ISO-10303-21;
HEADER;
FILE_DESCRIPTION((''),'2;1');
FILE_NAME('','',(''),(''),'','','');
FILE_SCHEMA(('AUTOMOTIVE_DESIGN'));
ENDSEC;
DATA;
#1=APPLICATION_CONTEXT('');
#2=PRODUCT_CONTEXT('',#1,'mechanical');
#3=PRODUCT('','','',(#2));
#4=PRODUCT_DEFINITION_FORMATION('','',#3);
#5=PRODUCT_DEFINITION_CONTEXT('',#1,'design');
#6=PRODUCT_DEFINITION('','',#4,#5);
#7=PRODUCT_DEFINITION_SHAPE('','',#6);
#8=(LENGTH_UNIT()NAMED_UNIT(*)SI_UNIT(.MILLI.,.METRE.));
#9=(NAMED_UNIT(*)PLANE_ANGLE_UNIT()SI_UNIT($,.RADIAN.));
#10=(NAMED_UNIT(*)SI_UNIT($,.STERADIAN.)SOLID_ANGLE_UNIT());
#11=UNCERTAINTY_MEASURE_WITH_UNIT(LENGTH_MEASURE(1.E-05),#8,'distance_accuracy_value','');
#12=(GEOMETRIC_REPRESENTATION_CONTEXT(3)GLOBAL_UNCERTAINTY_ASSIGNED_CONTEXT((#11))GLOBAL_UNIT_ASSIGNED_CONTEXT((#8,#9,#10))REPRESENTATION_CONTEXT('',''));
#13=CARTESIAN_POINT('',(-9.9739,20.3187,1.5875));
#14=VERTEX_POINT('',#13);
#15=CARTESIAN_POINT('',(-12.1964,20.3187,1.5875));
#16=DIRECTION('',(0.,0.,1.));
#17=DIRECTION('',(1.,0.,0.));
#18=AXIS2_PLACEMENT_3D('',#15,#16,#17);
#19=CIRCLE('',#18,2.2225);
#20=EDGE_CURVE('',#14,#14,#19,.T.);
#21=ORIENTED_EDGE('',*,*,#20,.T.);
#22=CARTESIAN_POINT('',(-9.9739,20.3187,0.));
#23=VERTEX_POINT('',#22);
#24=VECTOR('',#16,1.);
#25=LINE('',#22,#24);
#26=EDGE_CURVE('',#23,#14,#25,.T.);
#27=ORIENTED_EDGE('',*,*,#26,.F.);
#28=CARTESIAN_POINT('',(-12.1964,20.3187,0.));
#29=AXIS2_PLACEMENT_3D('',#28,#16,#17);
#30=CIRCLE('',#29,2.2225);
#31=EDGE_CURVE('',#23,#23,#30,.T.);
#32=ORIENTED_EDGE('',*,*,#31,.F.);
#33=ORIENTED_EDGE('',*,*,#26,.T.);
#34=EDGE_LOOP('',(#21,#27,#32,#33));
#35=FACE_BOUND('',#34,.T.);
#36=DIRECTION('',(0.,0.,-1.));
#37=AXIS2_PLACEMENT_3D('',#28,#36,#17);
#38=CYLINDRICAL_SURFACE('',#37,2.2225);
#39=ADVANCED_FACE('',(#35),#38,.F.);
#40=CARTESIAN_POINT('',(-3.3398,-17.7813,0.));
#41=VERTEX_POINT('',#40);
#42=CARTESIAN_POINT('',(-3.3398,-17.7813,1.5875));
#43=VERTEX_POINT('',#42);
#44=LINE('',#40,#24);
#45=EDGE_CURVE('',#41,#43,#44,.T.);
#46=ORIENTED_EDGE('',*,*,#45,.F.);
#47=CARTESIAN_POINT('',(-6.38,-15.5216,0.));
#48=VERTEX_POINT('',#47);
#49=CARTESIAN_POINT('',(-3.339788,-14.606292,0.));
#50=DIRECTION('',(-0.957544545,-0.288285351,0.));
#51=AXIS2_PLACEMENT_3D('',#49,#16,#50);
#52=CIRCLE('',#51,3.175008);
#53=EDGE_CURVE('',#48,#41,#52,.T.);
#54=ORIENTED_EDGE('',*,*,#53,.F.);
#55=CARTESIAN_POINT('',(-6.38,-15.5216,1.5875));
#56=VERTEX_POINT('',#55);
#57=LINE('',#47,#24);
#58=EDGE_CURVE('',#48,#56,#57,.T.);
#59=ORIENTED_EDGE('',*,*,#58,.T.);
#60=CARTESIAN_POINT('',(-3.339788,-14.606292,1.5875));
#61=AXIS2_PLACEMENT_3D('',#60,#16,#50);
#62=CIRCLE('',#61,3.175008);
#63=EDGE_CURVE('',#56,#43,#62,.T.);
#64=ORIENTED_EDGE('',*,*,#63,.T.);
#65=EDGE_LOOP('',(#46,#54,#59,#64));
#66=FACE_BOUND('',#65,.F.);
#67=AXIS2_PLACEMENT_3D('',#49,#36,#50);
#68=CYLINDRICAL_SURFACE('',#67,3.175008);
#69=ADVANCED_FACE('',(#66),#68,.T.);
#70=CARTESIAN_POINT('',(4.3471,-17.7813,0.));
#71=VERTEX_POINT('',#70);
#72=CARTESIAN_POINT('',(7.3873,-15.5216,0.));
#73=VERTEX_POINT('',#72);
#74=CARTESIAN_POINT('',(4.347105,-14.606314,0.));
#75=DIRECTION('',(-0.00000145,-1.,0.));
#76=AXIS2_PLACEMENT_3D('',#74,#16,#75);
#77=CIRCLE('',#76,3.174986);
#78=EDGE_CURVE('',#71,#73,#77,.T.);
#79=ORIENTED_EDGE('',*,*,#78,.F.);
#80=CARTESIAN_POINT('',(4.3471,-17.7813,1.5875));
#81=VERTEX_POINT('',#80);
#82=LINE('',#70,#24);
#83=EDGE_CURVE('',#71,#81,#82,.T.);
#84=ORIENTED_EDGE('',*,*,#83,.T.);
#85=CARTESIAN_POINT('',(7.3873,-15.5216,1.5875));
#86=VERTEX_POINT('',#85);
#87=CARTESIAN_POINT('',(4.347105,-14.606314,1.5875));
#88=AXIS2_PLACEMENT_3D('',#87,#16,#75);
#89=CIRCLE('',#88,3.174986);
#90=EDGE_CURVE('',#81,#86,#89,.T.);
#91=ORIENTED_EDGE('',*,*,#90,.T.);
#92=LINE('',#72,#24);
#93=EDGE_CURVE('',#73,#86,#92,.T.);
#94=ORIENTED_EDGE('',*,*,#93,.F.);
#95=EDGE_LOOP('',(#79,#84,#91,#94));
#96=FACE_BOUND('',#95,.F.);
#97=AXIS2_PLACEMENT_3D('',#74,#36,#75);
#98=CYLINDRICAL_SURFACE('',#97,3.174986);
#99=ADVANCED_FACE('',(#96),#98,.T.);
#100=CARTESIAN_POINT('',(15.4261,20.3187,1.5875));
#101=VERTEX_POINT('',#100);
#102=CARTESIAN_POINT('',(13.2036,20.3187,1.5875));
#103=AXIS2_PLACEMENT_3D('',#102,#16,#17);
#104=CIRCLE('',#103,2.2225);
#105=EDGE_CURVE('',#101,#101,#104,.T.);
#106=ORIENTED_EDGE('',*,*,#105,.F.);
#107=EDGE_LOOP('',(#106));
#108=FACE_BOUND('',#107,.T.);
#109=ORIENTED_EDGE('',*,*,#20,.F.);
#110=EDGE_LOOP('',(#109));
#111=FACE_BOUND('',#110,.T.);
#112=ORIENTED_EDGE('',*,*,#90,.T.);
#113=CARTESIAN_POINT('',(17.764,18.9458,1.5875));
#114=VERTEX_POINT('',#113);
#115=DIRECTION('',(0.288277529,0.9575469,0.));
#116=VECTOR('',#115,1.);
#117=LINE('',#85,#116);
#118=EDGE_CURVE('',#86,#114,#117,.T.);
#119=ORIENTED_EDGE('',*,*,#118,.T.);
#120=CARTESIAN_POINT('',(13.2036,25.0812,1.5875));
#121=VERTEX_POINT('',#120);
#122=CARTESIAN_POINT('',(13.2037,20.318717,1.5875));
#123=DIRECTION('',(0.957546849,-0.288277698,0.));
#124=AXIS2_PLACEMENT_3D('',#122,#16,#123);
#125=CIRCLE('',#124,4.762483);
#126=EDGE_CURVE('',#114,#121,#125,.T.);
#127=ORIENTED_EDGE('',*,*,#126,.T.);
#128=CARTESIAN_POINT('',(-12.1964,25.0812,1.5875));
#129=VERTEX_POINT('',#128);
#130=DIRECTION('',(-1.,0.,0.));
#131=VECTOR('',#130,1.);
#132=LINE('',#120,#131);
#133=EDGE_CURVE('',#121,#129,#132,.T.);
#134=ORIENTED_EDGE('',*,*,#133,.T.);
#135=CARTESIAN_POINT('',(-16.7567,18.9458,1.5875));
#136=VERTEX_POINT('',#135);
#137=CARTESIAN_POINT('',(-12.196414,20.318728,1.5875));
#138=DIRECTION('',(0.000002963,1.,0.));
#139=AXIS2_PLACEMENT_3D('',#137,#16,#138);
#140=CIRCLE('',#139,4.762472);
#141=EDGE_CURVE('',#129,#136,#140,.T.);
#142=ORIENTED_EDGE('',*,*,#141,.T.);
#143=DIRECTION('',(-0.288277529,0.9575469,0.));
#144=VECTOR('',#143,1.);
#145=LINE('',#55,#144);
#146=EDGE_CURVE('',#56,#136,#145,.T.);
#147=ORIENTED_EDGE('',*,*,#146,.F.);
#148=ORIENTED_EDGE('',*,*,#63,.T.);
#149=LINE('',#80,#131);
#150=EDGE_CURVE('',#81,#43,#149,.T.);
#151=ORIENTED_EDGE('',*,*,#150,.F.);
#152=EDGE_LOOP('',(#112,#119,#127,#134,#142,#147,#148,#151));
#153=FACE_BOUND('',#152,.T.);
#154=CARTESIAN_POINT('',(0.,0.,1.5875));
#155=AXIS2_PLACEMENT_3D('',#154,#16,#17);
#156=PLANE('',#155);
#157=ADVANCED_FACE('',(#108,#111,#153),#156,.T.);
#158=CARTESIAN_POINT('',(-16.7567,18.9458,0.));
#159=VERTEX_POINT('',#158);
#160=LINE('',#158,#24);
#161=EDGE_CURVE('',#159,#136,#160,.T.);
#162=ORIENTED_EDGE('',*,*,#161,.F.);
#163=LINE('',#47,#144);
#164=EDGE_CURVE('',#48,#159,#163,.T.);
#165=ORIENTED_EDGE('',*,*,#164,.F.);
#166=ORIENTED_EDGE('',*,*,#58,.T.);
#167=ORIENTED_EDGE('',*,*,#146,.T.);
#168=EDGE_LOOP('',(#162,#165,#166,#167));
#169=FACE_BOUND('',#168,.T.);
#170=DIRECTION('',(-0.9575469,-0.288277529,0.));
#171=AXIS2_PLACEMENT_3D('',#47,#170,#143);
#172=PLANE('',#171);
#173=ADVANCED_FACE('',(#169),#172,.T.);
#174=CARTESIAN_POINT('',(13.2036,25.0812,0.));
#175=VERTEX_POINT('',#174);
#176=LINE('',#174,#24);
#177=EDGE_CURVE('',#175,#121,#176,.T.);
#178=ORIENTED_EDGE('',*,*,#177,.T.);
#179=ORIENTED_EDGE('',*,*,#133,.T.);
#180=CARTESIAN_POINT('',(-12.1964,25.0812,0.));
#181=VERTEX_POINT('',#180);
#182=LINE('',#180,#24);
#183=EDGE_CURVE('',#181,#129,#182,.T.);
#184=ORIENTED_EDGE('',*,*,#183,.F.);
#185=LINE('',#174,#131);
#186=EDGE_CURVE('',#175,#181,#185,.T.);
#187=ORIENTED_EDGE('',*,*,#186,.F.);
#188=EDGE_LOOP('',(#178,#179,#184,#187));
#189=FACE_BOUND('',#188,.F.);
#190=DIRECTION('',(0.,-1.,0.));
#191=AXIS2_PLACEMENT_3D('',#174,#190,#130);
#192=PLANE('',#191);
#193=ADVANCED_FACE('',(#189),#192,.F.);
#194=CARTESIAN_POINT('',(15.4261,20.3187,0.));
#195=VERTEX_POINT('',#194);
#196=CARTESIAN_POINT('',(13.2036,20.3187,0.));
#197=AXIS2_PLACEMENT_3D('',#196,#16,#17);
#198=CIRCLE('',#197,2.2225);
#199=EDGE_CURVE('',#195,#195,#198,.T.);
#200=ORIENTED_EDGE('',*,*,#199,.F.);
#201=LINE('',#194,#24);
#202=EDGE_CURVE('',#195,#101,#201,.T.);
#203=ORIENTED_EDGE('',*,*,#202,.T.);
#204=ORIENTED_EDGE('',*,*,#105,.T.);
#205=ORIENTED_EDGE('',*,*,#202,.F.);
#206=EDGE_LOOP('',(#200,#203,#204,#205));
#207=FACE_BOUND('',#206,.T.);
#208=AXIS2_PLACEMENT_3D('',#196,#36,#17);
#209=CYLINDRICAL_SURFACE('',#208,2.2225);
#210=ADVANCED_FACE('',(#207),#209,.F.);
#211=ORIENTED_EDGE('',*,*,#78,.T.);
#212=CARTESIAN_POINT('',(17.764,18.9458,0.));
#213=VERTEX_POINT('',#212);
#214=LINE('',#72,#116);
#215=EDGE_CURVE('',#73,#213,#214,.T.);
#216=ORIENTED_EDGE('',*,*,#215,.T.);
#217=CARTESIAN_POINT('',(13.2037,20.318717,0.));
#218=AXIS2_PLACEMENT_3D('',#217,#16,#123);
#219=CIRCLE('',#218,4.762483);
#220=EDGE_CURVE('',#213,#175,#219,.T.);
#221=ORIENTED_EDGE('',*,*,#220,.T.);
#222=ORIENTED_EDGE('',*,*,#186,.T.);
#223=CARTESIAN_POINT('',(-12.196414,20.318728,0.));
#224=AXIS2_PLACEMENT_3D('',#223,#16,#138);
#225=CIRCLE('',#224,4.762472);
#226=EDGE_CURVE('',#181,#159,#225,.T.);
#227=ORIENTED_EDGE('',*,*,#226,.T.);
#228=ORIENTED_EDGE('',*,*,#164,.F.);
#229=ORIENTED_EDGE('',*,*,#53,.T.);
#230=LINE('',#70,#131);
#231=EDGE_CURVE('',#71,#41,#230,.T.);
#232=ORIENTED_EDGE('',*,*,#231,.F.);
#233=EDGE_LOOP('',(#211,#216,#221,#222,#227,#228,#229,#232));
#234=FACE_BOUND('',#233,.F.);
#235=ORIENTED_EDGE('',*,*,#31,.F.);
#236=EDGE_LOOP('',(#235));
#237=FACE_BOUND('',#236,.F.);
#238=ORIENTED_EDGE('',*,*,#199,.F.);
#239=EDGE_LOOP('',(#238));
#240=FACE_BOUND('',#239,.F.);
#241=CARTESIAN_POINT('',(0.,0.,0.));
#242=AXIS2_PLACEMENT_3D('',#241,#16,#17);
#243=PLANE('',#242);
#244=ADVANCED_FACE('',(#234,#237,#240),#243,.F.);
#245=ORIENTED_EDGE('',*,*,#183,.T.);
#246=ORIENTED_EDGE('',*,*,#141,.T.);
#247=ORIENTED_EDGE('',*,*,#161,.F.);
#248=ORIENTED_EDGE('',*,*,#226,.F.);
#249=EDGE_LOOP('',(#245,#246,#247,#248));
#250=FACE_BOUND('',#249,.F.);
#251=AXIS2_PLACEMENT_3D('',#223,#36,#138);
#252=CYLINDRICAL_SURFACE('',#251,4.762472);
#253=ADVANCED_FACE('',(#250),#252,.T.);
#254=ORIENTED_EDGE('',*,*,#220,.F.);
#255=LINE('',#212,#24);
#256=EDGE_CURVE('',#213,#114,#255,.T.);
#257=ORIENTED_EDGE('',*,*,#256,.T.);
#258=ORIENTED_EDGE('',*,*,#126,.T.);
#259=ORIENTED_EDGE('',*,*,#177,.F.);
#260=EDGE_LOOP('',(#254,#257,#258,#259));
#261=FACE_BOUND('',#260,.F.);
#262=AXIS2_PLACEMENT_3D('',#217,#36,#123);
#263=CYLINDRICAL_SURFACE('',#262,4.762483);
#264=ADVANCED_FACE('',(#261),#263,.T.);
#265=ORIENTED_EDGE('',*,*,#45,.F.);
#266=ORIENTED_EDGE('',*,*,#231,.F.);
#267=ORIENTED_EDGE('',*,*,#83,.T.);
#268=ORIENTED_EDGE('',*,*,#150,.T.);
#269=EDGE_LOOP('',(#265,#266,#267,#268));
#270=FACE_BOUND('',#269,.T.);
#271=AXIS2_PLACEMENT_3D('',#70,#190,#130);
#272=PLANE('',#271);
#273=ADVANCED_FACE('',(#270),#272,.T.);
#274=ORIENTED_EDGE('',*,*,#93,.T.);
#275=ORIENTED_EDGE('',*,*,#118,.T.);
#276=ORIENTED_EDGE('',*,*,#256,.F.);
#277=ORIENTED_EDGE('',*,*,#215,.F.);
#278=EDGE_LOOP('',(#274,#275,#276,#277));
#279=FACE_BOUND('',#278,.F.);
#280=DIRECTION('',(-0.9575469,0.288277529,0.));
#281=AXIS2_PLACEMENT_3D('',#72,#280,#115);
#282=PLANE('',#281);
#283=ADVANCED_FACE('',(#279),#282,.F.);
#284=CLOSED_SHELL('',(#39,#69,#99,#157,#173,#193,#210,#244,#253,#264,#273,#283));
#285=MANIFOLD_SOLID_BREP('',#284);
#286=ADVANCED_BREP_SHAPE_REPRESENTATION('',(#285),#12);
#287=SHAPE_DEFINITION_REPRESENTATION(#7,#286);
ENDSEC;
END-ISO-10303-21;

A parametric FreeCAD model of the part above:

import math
import FreeCAD as App
import Part
import Sketcher
from FreeCAD import Vector
Q = App.Units.Quantity

doc = App.newDocument("Part")
params = doc.addObject("Spreadsheet::Sheet", "Params")
for row, (alias, value) in enumerate([
    ("sketch1_radius", "0.1875 in"),
    ("sketch1_radius2", "0.125 in"),
    ("sketch1_width", "1 in"),
    ("sketch1_diameter", "0.175 in"),
    ("pad1_length", "0.0625 in"),
], start=1):
    params.set(f"A{row}", alias)
    params.set(f"B{row}", "=" + value)
    params.setAlias(f"B{row}", alias)

body = doc.addObject("PartDesign::Body", "Body")

sketch1 = doc.addObject("Sketcher::SketchObject", "Sketch")
body.addObject(sketch1)
sketch1.AttachmentSupport = (doc.XY_Plane, [""])
sketch1.MapMode = "FlatFace"
sketch1.addGeometry([
    Part.LineSegment(Vector(7.4, -15.5, 0), Vector(17.8, 18.9, 0)),
    Part.ArcOfCircle(Part.Circle(Vector(13.2, 20.3, 0), Vector(0, 0, 1), 4.8), math.radians(-17), math.radians(90)),
    Part.LineSegment(Vector(13.2, 25.1, 0), Vector(-12.2, 25.1, 0)),
    Part.ArcOfCircle(Part.Circle(Vector(-12.2, 20.3, 0), Vector(0, 0, 1), 4.8), math.radians(90), math.radians(197)),
    Part.LineSegment(Vector(-16.8, 18.9, 0), Vector(-6.4, -15.5, 0)),
    Part.ArcOfCircle(Part.Circle(Vector(-3.3, -14.6, 0), Vector(0, 0, 1), 3.2), math.radians(-163), math.radians(-90)),
    Part.LineSegment(Vector(-3.3, -17.8, 0), Vector(4.3, -17.8, 0)),
    Part.ArcOfCircle(Part.Circle(Vector(4.3, -14.6, 0), Vector(0, 0, 1), 3.2), math.radians(-90), math.radians(-17)),
    Part.Circle(Vector(-12.2, 20.3, 0), Vector(0, 0, 1), 2.2),
    Part.Circle(Vector(13.2, 20.3, 0), Vector(0, 0, 1), 2.2),
], False)
sketch1.addConstraint([
    Sketcher.Constraint("Tangent", 0, 2, 1, 1),
    Sketcher.Constraint("Tangent", 1, 2, 2, 1),
    Sketcher.Constraint("Tangent", 2, 2, 3, 1),
    Sketcher.Constraint("Tangent", 3, 2, 4, 1),
    Sketcher.Constraint("Tangent", 4, 2, 5, 1),
    Sketcher.Constraint("Tangent", 5, 2, 6, 1),
    Sketcher.Constraint("Tangent", 6, 2, 7, 1),
    Sketcher.Constraint("Tangent", 7, 2, 0, 1),
    Sketcher.Constraint("Horizontal", 2),
    Sketcher.Constraint("Horizontal", 6),
    Sketcher.Constraint("Coincident", 8, 3, 3, 3),
    Sketcher.Constraint("Coincident", 9, 3, 1, 3),
    Sketcher.Constraint("Equal", 1, 3),
    Sketcher.Constraint("Equal", 5, 7),
    Sketcher.Constraint("Equal", 8, 9),
    Sketcher.Constraint("Horizontal", 0, 2, 3, 2),
    Sketcher.Constraint("Radius", 1, Q("0.1875 in")),
    Sketcher.Constraint("Radius", 5, Q("0.125 in")),
    Sketcher.Constraint("DistanceY", 5, 2, 3, 3, Q("1.5 in")),
    Sketcher.Constraint("DistanceX", 2, 2, 2, 1, Q("1 in")),
    Sketcher.Constraint("Diameter", 8, Q("0.175 in")),
    Sketcher.Constraint("DistanceX", 3, 3, 4, 2, Q("0.229 in")),
    Sketcher.Constraint("DistanceX", 5, 3, -1, 1, Q("0.1315 in")),
    Sketcher.Constraint("DistanceY", -1, 1, 0, 2, Q("0.7459 in")),
])
sketch1.setExpression("Constraints[16]", "Params.sketch1_radius")
sketch1.setExpression("Constraints[17]", "Params.sketch1_radius2")
sketch1.setExpression("Constraints[19]", "Params.sketch1_width")
sketch1.setExpression("Constraints[20]", "Params.sketch1_diameter")
pad1 = doc.addObject("PartDesign::Pad", "Pad")
body.addObject(pad1)
pad1.Profile = sketch1
pad1.setExpression("Length", "Params.pad1_length")

doc.recompute()
